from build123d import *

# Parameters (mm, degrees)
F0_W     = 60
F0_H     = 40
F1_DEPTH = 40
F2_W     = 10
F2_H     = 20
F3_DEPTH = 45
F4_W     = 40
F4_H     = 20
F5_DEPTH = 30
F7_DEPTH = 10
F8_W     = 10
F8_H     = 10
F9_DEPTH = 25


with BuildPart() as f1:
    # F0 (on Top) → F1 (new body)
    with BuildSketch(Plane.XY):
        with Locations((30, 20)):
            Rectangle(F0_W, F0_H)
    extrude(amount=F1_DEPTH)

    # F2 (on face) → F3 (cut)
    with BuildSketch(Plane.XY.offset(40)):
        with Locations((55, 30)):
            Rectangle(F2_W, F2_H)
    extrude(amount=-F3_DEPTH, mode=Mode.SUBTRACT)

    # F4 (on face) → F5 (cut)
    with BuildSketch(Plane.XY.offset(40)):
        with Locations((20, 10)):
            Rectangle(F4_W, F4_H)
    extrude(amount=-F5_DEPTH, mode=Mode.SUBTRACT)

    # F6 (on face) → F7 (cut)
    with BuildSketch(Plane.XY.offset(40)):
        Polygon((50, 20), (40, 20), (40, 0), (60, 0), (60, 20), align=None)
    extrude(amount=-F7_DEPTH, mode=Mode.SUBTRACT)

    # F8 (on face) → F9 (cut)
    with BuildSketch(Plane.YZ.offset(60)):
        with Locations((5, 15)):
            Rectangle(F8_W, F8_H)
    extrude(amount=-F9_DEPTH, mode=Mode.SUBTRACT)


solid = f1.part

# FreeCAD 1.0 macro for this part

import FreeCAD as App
import Part
import Sketcher

V = App.Vector

doc = App.newDocument("Part")
params = doc.addObject("Spreadsheet::Sheet", "Params")
for row, (alias, value) in enumerate([
    ("sketch1_width", "60 mm"),
    ("sketch1_height", "40 mm"),
    ("pad1_length", "40 mm"),
    ("sketch2_width", "10 mm"),
    ("sketch2_height", "20 mm"),
    ("pocket1_length", "45 mm"),
    ("sketch3_width", "40 mm"),
    ("sketch3_height", "20 mm"),
    ("pocket2_length", "30 mm"),
    ("sketch4_width", "20 mm"),
    ("pocket3_length", "10 mm"),
    ("sketch5_width", "10 mm"),
    ("pocket4_length", "25 mm"),
], start=1):
    params.set(f"A{row}", alias)
    params.set(f"B{row}", "=" + value)
    params.setAlias(f"B{row}", alias)

body = doc.addObject("PartDesign::Body", "Body")

sketch1 = body.newObject("Sketcher::SketchObject", "Sketch")
sketch1.AttachmentSupport = (doc.getObject("XY_Plane"), [""])
sketch1.MapMode = "FlatFace"
sketch1.addGeometry(Part.LineSegment(V(0, 40, 0), V(0, 0, 0)), False)
sketch1.addGeometry(Part.LineSegment(V(0, 0, 0), V(60, 0, 0)), False)
sketch1.addGeometry(Part.LineSegment(V(60, 0, 0), V(60, 40, 0)), False)
sketch1.addGeometry(Part.LineSegment(V(60, 40, 0), V(0, 40, 0)), False)
sketch1.addConstraint(Sketcher.Constraint("Coincident", 0, 2, 1, 1))
sketch1.addConstraint(Sketcher.Constraint("Coincident", 1, 2, 2, 1))
sketch1.addConstraint(Sketcher.Constraint("Coincident", 2, 2, 3, 1))
sketch1.addConstraint(Sketcher.Constraint("Coincident", 3, 2, 0, 1))
sketch1.addConstraint(Sketcher.Constraint("Vertical", 0))
sketch1.addConstraint(Sketcher.Constraint("Horizontal", 1))
sketch1.addConstraint(Sketcher.Constraint("Vertical", 2))
sketch1.addConstraint(Sketcher.Constraint("Horizontal", 3))
sketch1.addConstraint(Sketcher.Constraint("Coincident", 0, 2, -1, 1))
sketch1.addConstraint(Sketcher.Constraint("DistanceX", 1, 1, 1, 2, 60.0))
sketch1.addConstraint(Sketcher.Constraint("DistanceY", 0, 2, 0, 1, 40.0))
sketch1.setExpression("Constraints[9]", "Params.sketch1_width")
sketch1.setExpression("Constraints[10]", "Params.sketch1_height")
pad1 = body.newObject("PartDesign::Pad", "Pad")
pad1.Profile = sketch1
pad1.setExpression("Length", "Params.pad1_length")

sketch2 = body.newObject("Sketcher::SketchObject", "Sketch001")
sketch2.AttachmentSupport = (doc.getObject("XY_Plane"), [""])
sketch2.MapMode = "FlatFace"
sketch2.AttachmentOffset = App.Placement(V(0, 0, 40), App.Rotation())
sketch2.addGeometry(Part.LineSegment(V(50, 40, 0), V(50, 20, 0)), False)
sketch2.addGeometry(Part.LineSegment(V(50, 20, 0), V(60, 20, 0)), False)
sketch2.addGeometry(Part.LineSegment(V(60, 20, 0), V(60, 40, 0)), False)
sketch2.addGeometry(Part.LineSegment(V(60, 40, 0), V(50, 40, 0)), False)
sketch2.addConstraint(Sketcher.Constraint("Coincident", 0, 2, 1, 1))
sketch2.addConstraint(Sketcher.Constraint("Coincident", 1, 2, 2, 1))
sketch2.addConstraint(Sketcher.Constraint("Coincident", 2, 2, 3, 1))
sketch2.addConstraint(Sketcher.Constraint("Coincident", 3, 2, 0, 1))
sketch2.addConstraint(Sketcher.Constraint("Vertical", 0))
sketch2.addConstraint(Sketcher.Constraint("Horizontal", 1))
sketch2.addConstraint(Sketcher.Constraint("Vertical", 2))
sketch2.addConstraint(Sketcher.Constraint("Horizontal", 3))
sketch2.addConstraint(Sketcher.Constraint("DistanceX", 1, 1, 1, 2, 10.0))
sketch2.addConstraint(Sketcher.Constraint("DistanceY", 0, 2, 0, 1, 20.0))
sketch2.addConstraint(Sketcher.Constraint("DistanceX", -1, 1, 0, 2, 50.0))
sketch2.addConstraint(Sketcher.Constraint("DistanceY", -1, 1, 0, 2, 20.0))
sketch2.setExpression("Constraints[8]", "Params.sketch2_width")
sketch2.setExpression("Constraints[9]", "Params.sketch2_height")
pocket1 = body.newObject("PartDesign::Pocket", "Pocket")
pocket1.Profile = sketch2
pocket1.setExpression("Length", "Params.pocket1_length")

sketch3 = body.newObject("Sketcher::SketchObject", "Sketch002")
sketch3.AttachmentSupport = (doc.getObject("XY_Plane"), [""])
sketch3.MapMode = "FlatFace"
sketch3.AttachmentOffset = App.Placement(V(0, 0, 40), App.Rotation())
sketch3.addGeometry(Part.LineSegment(V(0, 20, 0), V(0, 0, 0)), False)
sketch3.addGeometry(Part.LineSegment(V(0, 0, 0), V(40, 0, 0)), False)
sketch3.addGeometry(Part.LineSegment(V(40, 0, 0), V(40, 20, 0)), False)
sketch3.addGeometry(Part.LineSegment(V(40, 20, 0), V(0, 20, 0)), False)
sketch3.addConstraint(Sketcher.Constraint("Coincident", 0, 2, 1, 1))
sketch3.addConstraint(Sketcher.Constraint("Coincident", 1, 2, 2, 1))
sketch3.addConstraint(Sketcher.Constraint("Coincident", 2, 2, 3, 1))
sketch3.addConstraint(Sketcher.Constraint("Coincident", 3, 2, 0, 1))
sketch3.addConstraint(Sketcher.Constraint("Vertical", 0))
sketch3.addConstraint(Sketcher.Constraint("Horizontal", 1))
sketch3.addConstraint(Sketcher.Constraint("Vertical", 2))
sketch3.addConstraint(Sketcher.Constraint("Horizontal", 3))
sketch3.addConstraint(Sketcher.Constraint("Coincident", 0, 2, -1, 1))
sketch3.addConstraint(Sketcher.Constraint("DistanceX", 1, 1, 1, 2, 40.0))
sketch3.addConstraint(Sketcher.Constraint("DistanceY", 0, 2, 0, 1, 20.0))
sketch3.setExpression("Constraints[9]", "Params.sketch3_width")
sketch3.setExpression("Constraints[10]", "Params.sketch3_height")
pocket2 = body.newObject("PartDesign::Pocket", "Pocket001")
pocket2.Profile = sketch3
pocket2.setExpression("Length", "Params.pocket2_length")

sketch4 = body.newObject("Sketcher::SketchObject", "Sketch003")
sketch4.AttachmentSupport = (doc.getObject("XY_Plane"), [""])
sketch4.MapMode = "FlatFace"
sketch4.AttachmentOffset = App.Placement(V(0, 0, 40), App.Rotation())
sketch4.addGeometry(Part.LineSegment(V(40, 20, 0), V(40, 0, 0)), False)
sketch4.addGeometry(Part.LineSegment(V(40, 0, 0), V(60, 0, 0)), False)
sketch4.addGeometry(Part.LineSegment(V(60, 0, 0), V(60, 20, 0)), False)
sketch4.addGeometry(Part.LineSegment(V(60, 20, 0), V(40, 20, 0)), False)
sketch4.addConstraint(Sketcher.Constraint("Coincident", 0, 2, 1, 1))
sketch4.addConstraint(Sketcher.Constraint("Coincident", 1, 2, 2, 1))
sketch4.addConstraint(Sketcher.Constraint("Coincident", 2, 2, 3, 1))
sketch4.addConstraint(Sketcher.Constraint("Coincident", 3, 2, 0, 1))
sketch4.addConstraint(Sketcher.Constraint("Vertical", 0))
sketch4.addConstraint(Sketcher.Constraint("Horizontal", 1))
sketch4.addConstraint(Sketcher.Constraint("Vertical", 2))
sketch4.addConstraint(Sketcher.Constraint("Horizontal", 3))
sketch4.addConstraint(Sketcher.Constraint("PointOnObject", 0, 2, -1))
sketch4.addConstraint(Sketcher.Constraint("Equal", 3, 0))
sketch4.addConstraint(Sketcher.Constraint("DistanceX", 1, 1, 1, 2, 20.0))
sketch4.addConstraint(Sketcher.Constraint("DistanceX", -1, 1, 0, 2, 40.0))
sketch4.setExpression("Constraints[10]", "Params.sketch4_width")
pocket3 = body.newObject("PartDesign::Pocket", "Pocket002")
pocket3.Profile = sketch4
pocket3.setExpression("Length", "Params.pocket3_length")

sketch5 = body.newObject("Sketcher::SketchObject", "Sketch004")
sketch5.AttachmentSupport = (doc.getObject("YZ_Plane"), [""])
sketch5.MapMode = "FlatFace"
sketch5.AttachmentOffset = App.Placement(V(0, 0, 60), App.Rotation())
sketch5.addGeometry(Part.LineSegment(V(0, 20, 0), V(0, 10, 0)), False)
sketch5.addGeometry(Part.LineSegment(V(0, 10, 0), V(10, 10, 0)), False)
sketch5.addGeometry(Part.LineSegment(V(10, 10, 0), V(10, 20, 0)), False)
sketch5.addGeometry(Part.LineSegment(V(10, 20, 0), V(0, 20, 0)), False)
sketch5.addConstraint(Sketcher.Constraint("Coincident", 0, 2, 1, 1))
sketch5.addConstraint(Sketcher.Constraint("Coincident", 1, 2, 2, 1))
sketch5.addConstraint(Sketcher.Constraint("Coincident", 2, 2, 3, 1))
sketch5.addConstraint(Sketcher.Constraint("Coincident", 3, 2, 0, 1))
sketch5.addConstraint(Sketcher.Constraint("Vertical", 0))
sketch5.addConstraint(Sketcher.Constraint("Horizontal", 1))
sketch5.addConstraint(Sketcher.Constraint("Vertical", 2))
sketch5.addConstraint(Sketcher.Constraint("Horizontal", 3))
sketch5.addConstraint(Sketcher.Constraint("PointOnObject", 0, 2, -2))
sketch5.addConstraint(Sketcher.Constraint("Equal", 3, 0))
sketch5.addConstraint(Sketcher.Constraint("DistanceX", 1, 1, 1, 2, 10.0))
sketch5.addConstraint(Sketcher.Constraint("DistanceY", -1, 1, 0, 2, 10.0))
sketch5.setExpression("Constraints[10]", "Params.sketch5_width")
pocket4 = body.newObject("PartDesign::Pocket", "Pocket003")
pocket4.Profile = sketch5
pocket4.setExpression("Length", "Params.pocket4_length")

doc.recompute()
